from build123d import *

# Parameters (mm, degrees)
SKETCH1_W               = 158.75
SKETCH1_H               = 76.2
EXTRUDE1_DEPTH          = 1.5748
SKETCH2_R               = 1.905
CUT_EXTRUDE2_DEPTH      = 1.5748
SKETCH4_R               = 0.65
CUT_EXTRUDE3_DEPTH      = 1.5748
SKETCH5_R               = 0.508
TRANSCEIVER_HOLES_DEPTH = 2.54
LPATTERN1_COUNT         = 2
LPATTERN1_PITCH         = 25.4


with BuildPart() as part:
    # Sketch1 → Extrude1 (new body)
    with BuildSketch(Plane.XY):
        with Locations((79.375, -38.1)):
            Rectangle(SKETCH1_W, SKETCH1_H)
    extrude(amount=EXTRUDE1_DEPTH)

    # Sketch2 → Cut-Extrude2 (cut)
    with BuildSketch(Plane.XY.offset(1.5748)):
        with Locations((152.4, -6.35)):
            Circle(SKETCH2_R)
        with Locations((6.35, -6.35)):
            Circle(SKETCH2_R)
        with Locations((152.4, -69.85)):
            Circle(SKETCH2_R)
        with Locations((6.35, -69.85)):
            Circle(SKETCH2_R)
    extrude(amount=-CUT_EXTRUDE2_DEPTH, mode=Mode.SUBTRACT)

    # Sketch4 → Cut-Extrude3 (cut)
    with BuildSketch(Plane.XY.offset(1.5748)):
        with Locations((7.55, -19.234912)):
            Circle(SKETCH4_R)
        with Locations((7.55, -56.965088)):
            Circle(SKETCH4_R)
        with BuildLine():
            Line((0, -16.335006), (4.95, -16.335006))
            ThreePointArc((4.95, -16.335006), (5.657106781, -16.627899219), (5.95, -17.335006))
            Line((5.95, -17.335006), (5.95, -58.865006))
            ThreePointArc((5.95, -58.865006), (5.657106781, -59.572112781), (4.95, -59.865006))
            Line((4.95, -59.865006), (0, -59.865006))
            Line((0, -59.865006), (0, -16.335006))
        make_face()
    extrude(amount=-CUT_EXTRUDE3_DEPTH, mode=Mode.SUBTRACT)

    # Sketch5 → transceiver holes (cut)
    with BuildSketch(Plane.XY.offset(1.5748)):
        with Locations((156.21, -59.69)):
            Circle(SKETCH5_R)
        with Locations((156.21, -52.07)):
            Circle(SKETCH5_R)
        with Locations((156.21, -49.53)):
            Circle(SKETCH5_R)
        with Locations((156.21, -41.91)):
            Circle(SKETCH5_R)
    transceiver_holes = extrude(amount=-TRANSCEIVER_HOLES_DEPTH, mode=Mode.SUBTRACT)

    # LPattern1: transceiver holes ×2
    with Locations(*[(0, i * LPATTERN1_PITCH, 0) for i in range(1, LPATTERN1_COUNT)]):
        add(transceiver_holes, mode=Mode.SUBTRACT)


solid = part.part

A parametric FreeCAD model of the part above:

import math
import FreeCAD as App
import Part
import Sketcher
Q = App.Units.Quantity

doc = App.newDocument("Part")
params = doc.addObject("Spreadsheet::Sheet", "Params")
for row, (alias, value) in enumerate([
    ("sketch1_height", "3 in"),
    ("sketch1_width", "6.25 in"),
    ("pad1_length", "0.062 in"),
    ("sketch2_diameter", "0.15 in"),
    ("pocket1_length", "0.062 in"),
    ("pocket2_length", "0.062 in"),
    ("sketch4_diameter", "0.04 in"),
    ("pocket3_length", "0.1 in"),
    ("linearpattern_pitch", "1 in"),
], start=1):
    params.set(f"A{row}", alias)
    params.set(f"B{row}", "=" + value)
    params.setAlias(f"B{row}", alias)

body = doc.addObject("PartDesign::Body", "Body")

# Sketch on XY plane
sketch1 = body.newObject("Sketcher::SketchObject", "Sketch")
sketch1.AttachmentSupport = (doc.getObject("XY_Plane"), [""])
sketch1.MapMode = "FlatFace"
sketch1.addGeometry([
    Part.LineSegment(App.Vector(0, 0, 0), App.Vector(0, -76.2, 0)),
    Part.LineSegment(App.Vector(0, -76.2, 0), App.Vector(158.75, -76.2, 0)),
    Part.LineSegment(App.Vector(158.75, -76.2, 0), App.Vector(158.75, 0, 0)),
    Part.LineSegment(App.Vector(158.75, 0, 0), App.Vector(0, 0, 0)),
], False)
sketch1.addConstraint([
    Sketcher.Constraint("Coincident", 0, 2, 1, 1),
    Sketcher.Constraint("Coincident", 1, 2, 2, 1),
    Sketcher.Constraint("Coincident", 2, 2, 3, 1),
    Sketcher.Constraint("Coincident", 3, 2, 0, 1),
    Sketcher.Constraint("Vertical", 0),
    Sketcher.Constraint("Horizontal", 1),
    Sketcher.Constraint("Vertical", 2),
    Sketcher.Constraint("Horizontal", 3),
    Sketcher.Constraint("Coincident", 3, 2, -1, 1),
    Sketcher.Constraint("DistanceY", 0, 2, 0, 1, Q("3 in")),
    Sketcher.Constraint("DistanceX", 1, 1, 1, 2, Q("6.25 in")),
])
sketch1.setExpression("Constraints[9]", "Params.sketch1_height")
sketch1.setExpression("Constraints[10]", "Params.sketch1_width")
pad1 = body.newObject("PartDesign::Pad", "Pad")
pad1.Profile = sketch1
pad1.setExpression("Length", "Params.pad1_length")

# Sketch on XY plane
sketch2 = body.newObject("Sketcher::SketchObject", "Sketch001")
sketch2.AttachmentSupport = (doc.getObject("XY_Plane"), [""])
sketch2.MapMode = "FlatFace"
sketch2.AttachmentOffset = App.Placement(App.Vector(0, 0, 0.062 * 25.4), App.Rotation())
sketch2.addGeometry([
    Part.Circle(App.Vector(152.4, -6.35, 0), App.Vector(0, 0, 1), 1.905),
    Part.Circle(App.Vector(6.35, -6.35, 0), App.Vector(0, 0, 1), 1.905),
    Part.Circle(App.Vector(152.4, -69.85, 0), App.Vector(0, 0, 1), 1.905),
    Part.Circle(App.Vector(6.35, -69.85, 0), App.Vector(0, 0, 1), 1.905),
], False)
sketch2.addConstraint([
    Sketcher.Constraint("Equal", 0, 1),
    Sketcher.Constraint("Equal", 1, 2),
    Sketcher.Constraint("Equal", 2, 3),
    Sketcher.Constraint("Horizontal", 0, 3, 1, 3),
    Sketcher.Constraint("Horizontal", 2, 3, 3, 3),
    Sketcher.Constraint("Vertical", 0, 3, 2, 3),
    Sketcher.Constraint("Vertical", 1, 3, 3, 3),
    Sketcher.Constraint("Diameter", 0, Q("0.15 in")),
    Sketcher.Constraint("DistanceX", -1, 1, 0, 3, Q("6 in")),
    Sketcher.Constraint("DistanceY", 2, 3, 0, 3, Q("2.5 in")),
    Sketcher.Constraint("DistanceY", 0, 3, -1, 1, Q("0.25 in")),
    Sketcher.Constraint("DistanceX", -1, 1, 1, 3, Q("0.25 in")),
])
sketch2.setExpression("Constraints[7]", "Params.sketch2_diameter")
pocket1 = body.newObject("PartDesign::Pocket", "Pocket")
pocket1.Profile = sketch2
pocket1.setExpression("Length", "Params.pocket1_length")

# Sketch on XY plane
sketch3 = body.newObject("Sketcher::SketchObject", "Sketch002")
sketch3.AttachmentSupport = (doc.getObject("XY_Plane"), [""])
sketch3.MapMode = "FlatFace"
sketch3.AttachmentOffset = App.Placement(App.Vector(0, 0, 0.062 * 25.4), App.Rotation())
sketch3.addGeometry([
    Part.Circle(App.Vector(7.55, -19.234912, 0), App.Vector(0, 0, 1), 0.65),  # 0
    Part.Circle(App.Vector(7.55, -56.965088, 0), App.Vector(0, 0, 1), 0.65),  # 1
    Part.LineSegment(App.Vector(4.95, -16.335006, 0), App.Vector(0, -16.335006, 0)),  # 2
    Part.LineSegment(App.Vector(0, -16.335006, 0), App.Vector(0, -59.865006, 0)),  # 3
    Part.LineSegment(App.Vector(0, -59.865006, 0), App.Vector(4.95, -59.865006, 0)),  # 4
    Part.ArcOfCircle(Part.Circle(App.Vector(4.95, -58.865006, 0), App.Vector(0, 0, 1), 1), math.radians(-90), math.radians(0)),  # 5
    Part.LineSegment(App.Vector(5.95, -58.865006, 0), App.Vector(5.95, -17.335006, 0)),  # 6
    Part.ArcOfCircle(Part.Circle(App.Vector(4.95, -17.335006, 0), App.Vector(0, 0, 1), 1), math.radians(0), math.radians(90)),  # 7
], False)
sketch3.addConstraint([
    Sketcher.Constraint("Coincident", 2, 2, 3, 1),
    Sketcher.Constraint("Coincident", 3, 2, 4, 1),
    Sketcher.Constraint("Tangent", 4, 2, 5, 1),
    Sketcher.Constraint("Tangent", 5, 2, 6, 1),
    Sketcher.Constraint("Tangent", 6, 2, 7, 1),
    Sketcher.Constraint("Tangent", 7, 2, 2, 1),
    Sketcher.Constraint("Horizontal", 2),
    Sketcher.Constraint("Vertical", 3),
    Sketcher.Constraint("Horizontal", 4),
    Sketcher.Constraint("Vertical", 6),
    Sketcher.Constraint("Equal", 0, 1),
    Sketcher.Constraint("Equal", 5, 7),
    Sketcher.Constraint("PointOnObject", 2, 2, -2),
    Sketcher.Constraint("Vertical", 0, 3, 1, 3),
    Sketcher.Constraint("Diameter", 0, Q("1.3 mm")),
    Sketcher.Constraint("Radius", 5, Q("1 mm")),
    Sketcher.Constraint("DistanceX", 2, 2, 2, 1, Q("4.95 mm")),
    Sketcher.Constraint("DistanceY", 3, 2, 3, 1, Q("43.53 mm")),
    Sketcher.Constraint("DistanceY", 5, 3, 1, 3, Q("0.0747999 in")),
    Sketcher.Constraint("DistanceX", -1, 1, 0, 3, Q("7.55 mm")),
    Sketcher.Constraint("DistanceY", 1, 3, -1, 1, Q("56.965088 mm")),
    Sketcher.Constraint("DistanceY", 0, 3, -1, 1, Q("19.234912 mm")),
])
pocket2 = body.newObject("PartDesign::Pocket", "Pocket001")
pocket2.Profile = sketch3
pocket2.setExpression("Length", "Params.pocket2_length")

# Sketch on XY plane
sketch4 = body.newObject("Sketcher::SketchObject", "Sketch003")
sketch4.AttachmentSupport = (doc.getObject("XY_Plane"), [""])
sketch4.MapMode = "FlatFace"
sketch4.AttachmentOffset = App.Placement(App.Vector(0, 0, 0.062 * 25.4), App.Rotation())
sketch4.addGeometry([
    Part.Circle(App.Vector(156.21, -59.69, 0), App.Vector(0, 0, 1), 0.508),
    Part.Circle(App.Vector(156.21, -52.07, 0), App.Vector(0, 0, 1), 0.508),
    Part.Circle(App.Vector(156.21, -49.53, 0), App.Vector(0, 0, 1), 0.508),
    Part.Circle(App.Vector(156.21, -41.91, 0), App.Vector(0, 0, 1), 0.508),
], False)
sketch4.addConstraint([
    Sketcher.Constraint("Equal", 0, 1),
    Sketcher.Constraint("Equal", 1, 2),
    Sketcher.Constraint("Equal", 2, 3),
    Sketcher.Constraint("Vertical", 0, 3, 1, 3),
    Sketcher.Constraint("Vertical", 1, 3, 2, 3),
    Sketcher.Constraint("Vertical", 2, 3, 3, 3),
    Sketcher.Constraint("Diameter", 0, Q("0.04 in")),
    Sketcher.Constraint("DistanceY", 0, 3, 1, 3, Q("0.3 in")),
    Sketcher.Constraint("DistanceY", 1, 3, 2, 3, Q("0.1 in")),
    Sketcher.Constraint("DistanceY", 2, 3, 3, 3, Q("0.3 in")),
    Sketcher.Constraint("DistanceX", -1, 1, 0, 3, Q("6.15 in")),
    Sketcher.Constraint("DistanceY", 0, 3, -1, 1, Q("2.35 in")),
])
sketch4.setExpression("Constraints[6]", "Params.sketch4_diameter")
pocket3 = body.newObject("PartDesign::Pocket", "Pocket002")
pocket3.Profile = sketch4
pocket3.setExpression("Length", "Params.pocket3_length")
doc.recompute()

linearpattern = body.newObject("PartDesign::LinearPattern", "LinearPattern")
linearpattern.Originals = [pocket3]
linearpattern.Direction = (doc.getObject("Y_Axis"), [""])
linearpattern.Mode = "offset"
linearpattern.setExpression("Offset", "Params.linearpattern_pitch")
linearpattern.Occurrences = 2
body.Tip = linearpattern

doc.recompute()
